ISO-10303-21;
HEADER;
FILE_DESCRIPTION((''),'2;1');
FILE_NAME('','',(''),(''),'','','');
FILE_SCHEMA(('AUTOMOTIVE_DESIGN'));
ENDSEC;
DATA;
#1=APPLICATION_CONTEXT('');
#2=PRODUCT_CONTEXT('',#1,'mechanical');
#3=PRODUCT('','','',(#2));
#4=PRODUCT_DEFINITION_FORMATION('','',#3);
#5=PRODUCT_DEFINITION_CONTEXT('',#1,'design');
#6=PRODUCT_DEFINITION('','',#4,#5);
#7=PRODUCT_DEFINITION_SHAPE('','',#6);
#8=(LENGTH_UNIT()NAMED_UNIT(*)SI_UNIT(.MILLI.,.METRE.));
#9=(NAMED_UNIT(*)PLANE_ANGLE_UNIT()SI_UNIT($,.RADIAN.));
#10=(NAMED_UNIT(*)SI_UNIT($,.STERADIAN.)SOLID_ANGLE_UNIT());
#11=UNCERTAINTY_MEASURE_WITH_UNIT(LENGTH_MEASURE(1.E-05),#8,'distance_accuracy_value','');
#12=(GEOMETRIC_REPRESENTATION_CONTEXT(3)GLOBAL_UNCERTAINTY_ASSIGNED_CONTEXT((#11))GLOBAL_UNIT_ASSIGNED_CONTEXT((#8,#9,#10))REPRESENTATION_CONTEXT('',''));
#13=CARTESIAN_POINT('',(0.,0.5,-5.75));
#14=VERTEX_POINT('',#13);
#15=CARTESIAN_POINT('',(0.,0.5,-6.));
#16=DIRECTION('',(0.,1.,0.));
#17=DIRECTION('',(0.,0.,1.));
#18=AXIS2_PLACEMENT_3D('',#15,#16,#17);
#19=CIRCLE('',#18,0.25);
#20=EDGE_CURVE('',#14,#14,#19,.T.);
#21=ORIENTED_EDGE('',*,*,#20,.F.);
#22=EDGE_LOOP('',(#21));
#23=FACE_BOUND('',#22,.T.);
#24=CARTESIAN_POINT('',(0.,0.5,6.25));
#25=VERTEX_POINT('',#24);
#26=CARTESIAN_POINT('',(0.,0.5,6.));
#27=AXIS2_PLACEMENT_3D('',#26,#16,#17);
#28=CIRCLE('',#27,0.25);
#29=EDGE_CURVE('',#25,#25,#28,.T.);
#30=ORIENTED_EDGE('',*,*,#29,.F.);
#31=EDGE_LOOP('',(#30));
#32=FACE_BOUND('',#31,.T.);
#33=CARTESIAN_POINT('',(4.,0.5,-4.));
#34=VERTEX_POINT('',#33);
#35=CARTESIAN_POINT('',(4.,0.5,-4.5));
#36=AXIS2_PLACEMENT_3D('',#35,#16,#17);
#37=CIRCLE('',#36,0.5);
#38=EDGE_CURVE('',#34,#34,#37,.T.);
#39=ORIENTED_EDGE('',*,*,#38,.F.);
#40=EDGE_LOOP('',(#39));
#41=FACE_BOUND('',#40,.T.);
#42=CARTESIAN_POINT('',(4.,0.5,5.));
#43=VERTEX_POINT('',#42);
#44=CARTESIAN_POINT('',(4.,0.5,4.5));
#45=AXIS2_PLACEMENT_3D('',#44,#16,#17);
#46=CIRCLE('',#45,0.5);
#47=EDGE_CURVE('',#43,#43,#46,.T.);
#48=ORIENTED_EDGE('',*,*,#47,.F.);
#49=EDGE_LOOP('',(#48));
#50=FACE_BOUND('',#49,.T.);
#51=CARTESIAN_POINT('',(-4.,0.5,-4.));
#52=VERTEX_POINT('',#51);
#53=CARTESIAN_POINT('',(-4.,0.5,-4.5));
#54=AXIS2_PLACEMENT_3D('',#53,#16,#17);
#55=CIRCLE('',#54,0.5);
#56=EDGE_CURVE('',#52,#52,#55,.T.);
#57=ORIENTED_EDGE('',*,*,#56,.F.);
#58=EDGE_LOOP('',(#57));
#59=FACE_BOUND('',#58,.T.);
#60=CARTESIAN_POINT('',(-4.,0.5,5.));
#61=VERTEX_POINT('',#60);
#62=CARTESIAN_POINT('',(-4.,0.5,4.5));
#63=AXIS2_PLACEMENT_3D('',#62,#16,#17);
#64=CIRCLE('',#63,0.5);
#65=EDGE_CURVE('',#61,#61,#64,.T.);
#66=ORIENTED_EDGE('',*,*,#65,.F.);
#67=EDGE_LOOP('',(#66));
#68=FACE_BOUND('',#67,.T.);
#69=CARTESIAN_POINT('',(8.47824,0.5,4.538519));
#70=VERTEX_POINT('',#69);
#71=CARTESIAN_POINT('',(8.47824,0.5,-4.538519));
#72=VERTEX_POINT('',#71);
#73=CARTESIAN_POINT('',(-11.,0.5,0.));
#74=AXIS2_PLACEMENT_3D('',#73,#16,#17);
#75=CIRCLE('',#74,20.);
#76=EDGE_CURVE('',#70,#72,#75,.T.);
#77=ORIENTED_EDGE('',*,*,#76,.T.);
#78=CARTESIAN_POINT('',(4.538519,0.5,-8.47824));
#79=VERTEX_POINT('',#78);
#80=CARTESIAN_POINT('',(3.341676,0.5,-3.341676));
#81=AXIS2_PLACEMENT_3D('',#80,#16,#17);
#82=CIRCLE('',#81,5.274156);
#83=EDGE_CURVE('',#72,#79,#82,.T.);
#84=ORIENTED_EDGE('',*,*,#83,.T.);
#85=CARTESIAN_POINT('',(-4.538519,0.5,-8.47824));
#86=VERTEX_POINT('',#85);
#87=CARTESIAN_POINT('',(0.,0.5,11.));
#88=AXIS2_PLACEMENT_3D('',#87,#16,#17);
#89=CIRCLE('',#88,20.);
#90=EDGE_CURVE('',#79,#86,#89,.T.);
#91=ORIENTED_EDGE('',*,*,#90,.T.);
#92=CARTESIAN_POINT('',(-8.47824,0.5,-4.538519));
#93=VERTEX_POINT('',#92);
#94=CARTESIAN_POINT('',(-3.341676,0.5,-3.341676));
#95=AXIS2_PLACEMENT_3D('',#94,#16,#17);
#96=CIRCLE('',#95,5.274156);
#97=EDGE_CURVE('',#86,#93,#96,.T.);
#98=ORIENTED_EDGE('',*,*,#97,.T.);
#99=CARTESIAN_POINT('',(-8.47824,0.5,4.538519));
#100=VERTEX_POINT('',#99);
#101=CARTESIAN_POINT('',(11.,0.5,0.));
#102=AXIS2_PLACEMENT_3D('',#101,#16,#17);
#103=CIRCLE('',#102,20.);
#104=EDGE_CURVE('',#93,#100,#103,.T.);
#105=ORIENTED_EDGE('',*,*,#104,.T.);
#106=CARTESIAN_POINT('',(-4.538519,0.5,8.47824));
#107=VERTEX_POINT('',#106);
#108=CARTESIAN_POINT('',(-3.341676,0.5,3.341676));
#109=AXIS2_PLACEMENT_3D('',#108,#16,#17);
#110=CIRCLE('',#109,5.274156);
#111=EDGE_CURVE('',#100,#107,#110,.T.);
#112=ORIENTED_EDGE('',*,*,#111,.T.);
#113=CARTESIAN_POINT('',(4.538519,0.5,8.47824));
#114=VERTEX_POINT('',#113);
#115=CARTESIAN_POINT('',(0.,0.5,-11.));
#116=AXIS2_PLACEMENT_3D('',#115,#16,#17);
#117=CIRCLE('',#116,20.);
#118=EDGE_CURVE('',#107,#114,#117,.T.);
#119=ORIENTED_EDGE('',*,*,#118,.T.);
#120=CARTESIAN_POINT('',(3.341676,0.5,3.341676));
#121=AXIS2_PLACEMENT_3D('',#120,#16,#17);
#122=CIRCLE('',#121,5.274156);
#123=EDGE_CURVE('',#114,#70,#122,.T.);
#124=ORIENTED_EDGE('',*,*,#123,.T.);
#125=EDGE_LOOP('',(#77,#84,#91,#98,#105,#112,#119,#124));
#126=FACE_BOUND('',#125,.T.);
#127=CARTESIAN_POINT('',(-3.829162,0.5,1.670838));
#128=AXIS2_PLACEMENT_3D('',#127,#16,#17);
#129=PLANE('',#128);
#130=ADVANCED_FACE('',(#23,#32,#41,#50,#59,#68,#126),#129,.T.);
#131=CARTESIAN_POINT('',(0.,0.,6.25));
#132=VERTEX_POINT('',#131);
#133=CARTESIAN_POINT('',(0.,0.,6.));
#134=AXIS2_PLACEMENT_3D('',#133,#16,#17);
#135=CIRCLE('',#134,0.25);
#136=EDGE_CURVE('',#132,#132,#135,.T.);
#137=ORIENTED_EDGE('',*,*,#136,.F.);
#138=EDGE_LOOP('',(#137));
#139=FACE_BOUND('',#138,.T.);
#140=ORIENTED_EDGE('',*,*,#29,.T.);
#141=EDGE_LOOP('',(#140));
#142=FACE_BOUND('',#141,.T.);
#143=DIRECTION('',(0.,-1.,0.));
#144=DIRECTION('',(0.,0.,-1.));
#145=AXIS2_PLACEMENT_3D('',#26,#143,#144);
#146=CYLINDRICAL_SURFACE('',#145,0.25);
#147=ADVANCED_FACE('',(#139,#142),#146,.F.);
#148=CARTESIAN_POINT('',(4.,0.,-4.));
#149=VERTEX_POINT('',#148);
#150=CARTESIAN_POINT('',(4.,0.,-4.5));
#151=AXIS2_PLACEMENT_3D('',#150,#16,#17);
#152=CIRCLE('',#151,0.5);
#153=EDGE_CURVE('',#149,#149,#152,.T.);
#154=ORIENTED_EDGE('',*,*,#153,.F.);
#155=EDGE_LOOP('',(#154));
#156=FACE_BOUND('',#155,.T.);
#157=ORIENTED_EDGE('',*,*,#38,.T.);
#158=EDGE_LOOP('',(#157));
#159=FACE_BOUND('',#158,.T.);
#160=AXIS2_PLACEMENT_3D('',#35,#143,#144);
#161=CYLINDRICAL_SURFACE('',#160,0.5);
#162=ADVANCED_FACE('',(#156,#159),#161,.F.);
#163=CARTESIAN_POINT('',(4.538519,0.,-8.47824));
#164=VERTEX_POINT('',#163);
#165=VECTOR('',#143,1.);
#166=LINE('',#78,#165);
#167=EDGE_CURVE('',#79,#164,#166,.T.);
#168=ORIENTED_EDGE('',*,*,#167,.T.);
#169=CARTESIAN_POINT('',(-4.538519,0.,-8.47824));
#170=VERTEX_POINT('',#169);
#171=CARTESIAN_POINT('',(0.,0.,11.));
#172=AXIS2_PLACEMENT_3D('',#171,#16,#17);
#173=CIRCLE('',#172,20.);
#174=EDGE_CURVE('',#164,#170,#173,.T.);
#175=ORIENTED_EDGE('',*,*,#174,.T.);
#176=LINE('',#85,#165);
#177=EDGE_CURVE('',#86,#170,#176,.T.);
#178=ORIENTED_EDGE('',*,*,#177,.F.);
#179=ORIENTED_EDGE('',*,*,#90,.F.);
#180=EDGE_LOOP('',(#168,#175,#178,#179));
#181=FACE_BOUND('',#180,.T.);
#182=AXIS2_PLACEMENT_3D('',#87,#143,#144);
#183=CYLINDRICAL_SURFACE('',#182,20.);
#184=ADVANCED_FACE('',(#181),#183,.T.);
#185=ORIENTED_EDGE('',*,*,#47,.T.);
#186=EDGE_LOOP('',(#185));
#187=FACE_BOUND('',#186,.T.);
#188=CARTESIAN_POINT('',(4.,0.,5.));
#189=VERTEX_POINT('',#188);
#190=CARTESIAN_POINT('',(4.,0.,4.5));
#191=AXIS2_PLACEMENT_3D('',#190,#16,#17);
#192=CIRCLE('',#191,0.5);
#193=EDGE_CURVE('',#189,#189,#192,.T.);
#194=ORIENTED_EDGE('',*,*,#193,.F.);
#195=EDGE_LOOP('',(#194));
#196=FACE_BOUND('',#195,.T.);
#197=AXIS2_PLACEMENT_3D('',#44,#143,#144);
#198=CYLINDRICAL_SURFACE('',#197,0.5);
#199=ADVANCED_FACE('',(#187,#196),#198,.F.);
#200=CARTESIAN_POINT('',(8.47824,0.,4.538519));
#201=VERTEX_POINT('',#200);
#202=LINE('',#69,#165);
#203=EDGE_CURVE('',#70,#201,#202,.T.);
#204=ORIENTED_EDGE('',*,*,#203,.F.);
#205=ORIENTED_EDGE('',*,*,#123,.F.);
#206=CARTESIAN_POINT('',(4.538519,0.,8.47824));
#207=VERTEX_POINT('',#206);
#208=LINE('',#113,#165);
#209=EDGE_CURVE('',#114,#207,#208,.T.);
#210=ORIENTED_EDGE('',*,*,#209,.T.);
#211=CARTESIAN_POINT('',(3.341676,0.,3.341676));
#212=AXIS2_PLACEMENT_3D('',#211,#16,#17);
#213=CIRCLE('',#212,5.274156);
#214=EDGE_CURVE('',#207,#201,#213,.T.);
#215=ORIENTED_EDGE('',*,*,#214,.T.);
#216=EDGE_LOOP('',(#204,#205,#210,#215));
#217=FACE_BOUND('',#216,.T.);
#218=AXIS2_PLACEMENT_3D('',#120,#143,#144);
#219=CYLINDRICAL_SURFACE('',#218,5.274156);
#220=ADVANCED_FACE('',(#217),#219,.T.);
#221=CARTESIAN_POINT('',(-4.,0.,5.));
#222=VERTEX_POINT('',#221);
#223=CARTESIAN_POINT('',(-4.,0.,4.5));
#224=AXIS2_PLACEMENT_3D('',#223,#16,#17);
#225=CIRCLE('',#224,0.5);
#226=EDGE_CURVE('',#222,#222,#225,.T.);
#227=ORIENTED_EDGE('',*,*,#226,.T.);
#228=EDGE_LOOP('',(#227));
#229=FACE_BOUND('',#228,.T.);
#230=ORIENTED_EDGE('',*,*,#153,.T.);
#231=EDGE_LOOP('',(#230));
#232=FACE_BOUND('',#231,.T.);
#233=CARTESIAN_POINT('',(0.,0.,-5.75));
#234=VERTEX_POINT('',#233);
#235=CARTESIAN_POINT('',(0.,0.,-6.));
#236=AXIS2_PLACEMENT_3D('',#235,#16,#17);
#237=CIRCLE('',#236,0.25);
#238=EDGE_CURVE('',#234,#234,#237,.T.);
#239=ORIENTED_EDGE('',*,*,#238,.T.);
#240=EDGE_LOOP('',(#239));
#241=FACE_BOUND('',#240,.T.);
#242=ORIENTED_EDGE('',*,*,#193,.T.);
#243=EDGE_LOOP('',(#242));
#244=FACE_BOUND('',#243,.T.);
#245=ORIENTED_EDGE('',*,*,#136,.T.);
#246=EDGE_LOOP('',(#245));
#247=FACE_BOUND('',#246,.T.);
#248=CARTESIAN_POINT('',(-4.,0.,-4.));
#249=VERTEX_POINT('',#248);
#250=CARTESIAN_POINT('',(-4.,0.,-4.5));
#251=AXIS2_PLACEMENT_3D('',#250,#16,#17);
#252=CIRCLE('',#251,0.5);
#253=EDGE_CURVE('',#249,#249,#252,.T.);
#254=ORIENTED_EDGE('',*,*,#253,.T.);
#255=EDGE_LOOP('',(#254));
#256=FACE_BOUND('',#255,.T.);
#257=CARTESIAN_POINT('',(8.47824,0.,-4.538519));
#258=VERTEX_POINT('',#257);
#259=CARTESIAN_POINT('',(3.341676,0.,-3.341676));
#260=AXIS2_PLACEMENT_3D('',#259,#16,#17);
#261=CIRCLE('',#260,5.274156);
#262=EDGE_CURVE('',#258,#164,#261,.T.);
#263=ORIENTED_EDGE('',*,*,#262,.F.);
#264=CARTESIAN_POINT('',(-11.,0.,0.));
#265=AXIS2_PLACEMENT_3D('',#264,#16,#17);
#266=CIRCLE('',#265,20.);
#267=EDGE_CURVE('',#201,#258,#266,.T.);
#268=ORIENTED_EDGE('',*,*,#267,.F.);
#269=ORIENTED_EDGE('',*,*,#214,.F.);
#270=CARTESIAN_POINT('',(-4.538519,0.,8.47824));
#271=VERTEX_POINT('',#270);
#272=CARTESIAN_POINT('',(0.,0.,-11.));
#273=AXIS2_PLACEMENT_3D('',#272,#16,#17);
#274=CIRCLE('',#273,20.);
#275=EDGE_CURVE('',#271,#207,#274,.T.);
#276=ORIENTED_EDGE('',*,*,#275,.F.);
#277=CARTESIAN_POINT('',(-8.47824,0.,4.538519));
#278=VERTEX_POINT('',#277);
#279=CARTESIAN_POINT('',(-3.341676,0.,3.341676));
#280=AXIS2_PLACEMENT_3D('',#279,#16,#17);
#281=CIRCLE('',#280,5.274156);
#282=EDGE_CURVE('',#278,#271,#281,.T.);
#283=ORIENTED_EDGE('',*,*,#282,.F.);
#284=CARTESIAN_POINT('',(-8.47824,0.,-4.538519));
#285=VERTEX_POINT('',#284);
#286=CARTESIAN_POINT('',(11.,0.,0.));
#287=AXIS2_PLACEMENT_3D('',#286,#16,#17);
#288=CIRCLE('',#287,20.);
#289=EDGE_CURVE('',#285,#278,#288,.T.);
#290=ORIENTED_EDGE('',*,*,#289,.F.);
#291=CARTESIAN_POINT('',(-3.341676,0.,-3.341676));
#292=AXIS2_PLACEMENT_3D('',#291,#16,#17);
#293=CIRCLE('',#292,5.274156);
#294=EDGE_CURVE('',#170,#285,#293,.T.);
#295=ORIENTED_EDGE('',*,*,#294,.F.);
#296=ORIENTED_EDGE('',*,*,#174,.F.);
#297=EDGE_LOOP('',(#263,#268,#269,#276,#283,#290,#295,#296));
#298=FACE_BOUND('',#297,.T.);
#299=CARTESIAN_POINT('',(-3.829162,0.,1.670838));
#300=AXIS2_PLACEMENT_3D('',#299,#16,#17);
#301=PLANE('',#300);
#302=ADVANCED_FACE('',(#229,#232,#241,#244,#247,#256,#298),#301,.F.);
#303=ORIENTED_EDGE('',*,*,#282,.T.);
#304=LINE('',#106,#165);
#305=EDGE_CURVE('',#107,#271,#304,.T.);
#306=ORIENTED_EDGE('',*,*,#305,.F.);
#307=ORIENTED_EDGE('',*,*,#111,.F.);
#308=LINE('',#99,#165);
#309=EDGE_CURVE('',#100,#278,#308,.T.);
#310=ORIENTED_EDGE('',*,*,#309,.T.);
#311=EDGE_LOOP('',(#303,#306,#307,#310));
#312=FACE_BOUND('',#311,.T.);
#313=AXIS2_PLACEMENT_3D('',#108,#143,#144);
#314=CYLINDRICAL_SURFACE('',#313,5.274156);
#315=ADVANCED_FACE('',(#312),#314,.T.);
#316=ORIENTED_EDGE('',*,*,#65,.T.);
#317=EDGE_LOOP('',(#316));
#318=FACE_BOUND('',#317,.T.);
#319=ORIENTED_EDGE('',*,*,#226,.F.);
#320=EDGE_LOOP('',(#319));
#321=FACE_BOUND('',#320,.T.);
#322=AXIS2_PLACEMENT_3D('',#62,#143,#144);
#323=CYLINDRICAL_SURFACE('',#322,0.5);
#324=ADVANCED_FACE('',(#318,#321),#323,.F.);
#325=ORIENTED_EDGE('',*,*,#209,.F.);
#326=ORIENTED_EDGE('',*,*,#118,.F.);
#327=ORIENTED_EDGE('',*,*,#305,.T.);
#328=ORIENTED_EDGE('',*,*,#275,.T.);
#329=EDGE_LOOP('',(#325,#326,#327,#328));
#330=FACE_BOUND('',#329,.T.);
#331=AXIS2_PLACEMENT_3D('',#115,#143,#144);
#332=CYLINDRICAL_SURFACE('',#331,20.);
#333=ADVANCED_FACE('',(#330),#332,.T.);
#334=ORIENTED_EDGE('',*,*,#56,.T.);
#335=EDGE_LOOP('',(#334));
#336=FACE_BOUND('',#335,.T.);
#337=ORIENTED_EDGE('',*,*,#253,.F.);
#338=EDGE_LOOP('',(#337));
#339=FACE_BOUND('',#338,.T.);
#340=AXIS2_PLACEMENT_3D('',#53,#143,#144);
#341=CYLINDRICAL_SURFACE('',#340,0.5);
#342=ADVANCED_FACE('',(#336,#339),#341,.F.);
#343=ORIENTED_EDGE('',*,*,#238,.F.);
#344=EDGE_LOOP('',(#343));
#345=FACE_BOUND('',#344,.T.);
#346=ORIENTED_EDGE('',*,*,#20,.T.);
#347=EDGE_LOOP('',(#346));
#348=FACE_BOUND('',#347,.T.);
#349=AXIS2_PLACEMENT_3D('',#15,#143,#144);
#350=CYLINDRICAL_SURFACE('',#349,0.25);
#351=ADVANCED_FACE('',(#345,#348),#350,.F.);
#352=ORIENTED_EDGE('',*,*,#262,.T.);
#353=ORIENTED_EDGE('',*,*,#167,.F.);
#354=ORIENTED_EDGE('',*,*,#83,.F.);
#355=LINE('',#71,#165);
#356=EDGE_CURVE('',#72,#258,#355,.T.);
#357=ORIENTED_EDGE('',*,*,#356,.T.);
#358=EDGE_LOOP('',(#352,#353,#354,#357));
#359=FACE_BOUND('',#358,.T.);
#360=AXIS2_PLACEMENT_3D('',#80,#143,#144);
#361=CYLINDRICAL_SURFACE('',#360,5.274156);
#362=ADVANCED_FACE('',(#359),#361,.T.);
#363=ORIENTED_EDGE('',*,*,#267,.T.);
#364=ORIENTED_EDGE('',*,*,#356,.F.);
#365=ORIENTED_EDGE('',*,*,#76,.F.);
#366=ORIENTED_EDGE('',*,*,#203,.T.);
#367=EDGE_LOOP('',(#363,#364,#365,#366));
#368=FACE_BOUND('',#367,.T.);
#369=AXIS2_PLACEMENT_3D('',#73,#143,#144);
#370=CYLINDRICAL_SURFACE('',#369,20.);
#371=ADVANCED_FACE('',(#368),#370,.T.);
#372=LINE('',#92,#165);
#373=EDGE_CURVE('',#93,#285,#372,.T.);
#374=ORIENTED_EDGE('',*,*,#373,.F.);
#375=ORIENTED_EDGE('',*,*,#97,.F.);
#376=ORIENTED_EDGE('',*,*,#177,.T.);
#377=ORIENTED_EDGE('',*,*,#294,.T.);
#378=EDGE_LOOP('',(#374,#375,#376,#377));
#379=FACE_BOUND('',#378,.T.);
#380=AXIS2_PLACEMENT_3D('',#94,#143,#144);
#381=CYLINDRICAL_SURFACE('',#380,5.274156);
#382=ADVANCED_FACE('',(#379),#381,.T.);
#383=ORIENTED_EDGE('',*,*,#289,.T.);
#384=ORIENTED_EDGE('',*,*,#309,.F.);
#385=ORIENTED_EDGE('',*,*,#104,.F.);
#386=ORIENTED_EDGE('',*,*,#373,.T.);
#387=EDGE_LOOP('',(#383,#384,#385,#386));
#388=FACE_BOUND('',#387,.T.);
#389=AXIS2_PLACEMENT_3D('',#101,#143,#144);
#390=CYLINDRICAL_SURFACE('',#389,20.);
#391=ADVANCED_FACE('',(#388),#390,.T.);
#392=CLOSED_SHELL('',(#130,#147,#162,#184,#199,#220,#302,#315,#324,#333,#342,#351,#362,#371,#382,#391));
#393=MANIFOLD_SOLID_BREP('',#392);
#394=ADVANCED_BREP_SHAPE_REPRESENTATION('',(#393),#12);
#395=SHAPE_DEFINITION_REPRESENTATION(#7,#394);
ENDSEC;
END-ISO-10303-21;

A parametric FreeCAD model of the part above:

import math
import FreeCAD as App
import Part
import Sketcher
from FreeCAD import Vector
Q = App.Units.Quantity

doc = App.newDocument("Part")
params = doc.addObject("Spreadsheet::Sheet", "Params")
for row, (alias, value) in enumerate([
    ("sketch1_diameter", "1 mm"),
    ("sketch1_radius", "20 mm"),
    ("sketch1_diameter2", "0.5 mm"),
    ("pad1_length", "0.5 mm"),
], start=1):
    params.set(f"A{row}", alias)
    params.set(f"B{row}", "=" + value)
    params.setAlias(f"B{row}", alias)

body = doc.addObject("PartDesign::Body", "Body")

sketch1 = body.newObject("Sketcher::SketchObject", "Sketch")
sketch1.AttachmentSupport = (doc.getObject("XZ_Plane"), [""])
sketch1.MapMode = "FlatFace"
sketch1.addGeometry(Part.ArcOfCircle(Part.Circle(Vector(-11, 0, 0), Vector(0, 0, 1), 20), math.radians(-13), math.radians(13)), False)
sketch1.addGeometry(Part.ArcOfCircle(Part.Circle(Vector(3.34, -3.34, 0), Vector(0, 0, 1), 5.27), math.radians(-77), math.radians(-13)), False)
sketch1.addGeometry(Part.ArcOfCircle(Part.Circle(Vector(0, 11, 0), Vector(0, 0, 1), 20), math.radians(-103), math.radians(-77)), False)
sketch1.addGeometry(Part.ArcOfCircle(Part.Circle(Vector(-3.34, -3.34, 0), Vector(0, 0, 1), 5.27), math.radians(-167), math.radians(-103)), False)
sketch1.addGeometry(Part.ArcOfCircle(Part.Circle(Vector(11, 0, 0), Vector(0, 0, 1), 20), math.radians(167), math.radians(193)), False)
sketch1.addGeometry(Part.ArcOfCircle(Part.Circle(Vector(-3.34, 3.34, 0), Vector(0, 0, 1), 5.27), math.radians(103), math.radians(167)), False)
sketch1.addGeometry(Part.ArcOfCircle(Part.Circle(Vector(0, -11, 0), Vector(0, 0, 1), 20), math.radians(77), math.radians(103)), False)
sketch1.addGeometry(Part.ArcOfCircle(Part.Circle(Vector(3.34, 3.34, 0), Vector(0, 0, 1), 5.27), math.radians(13), math.radians(77)), False)
sketch1.addGeometry(Part.Circle(Vector(-4, 4.5, 0), Vector(0, 0, 1), 0.5), False)
sketch1.addGeometry(Part.Circle(Vector(0, 6, 0), Vector(0, 0, 1), 0.25), False)
sketch1.addGeometry(Part.Circle(Vector(4, 4.5, 0), Vector(0, 0, 1), 0.5), False)
sketch1.addGeometry(Part.Circle(Vector(-4, -4.5, 0), Vector(0, 0, 1), 0.5), False)
sketch1.addGeometry(Part.Circle(Vector(0, -6, 0), Vector(0, 0, 1), 0.25), False)
sketch1.addGeometry(Part.Circle(Vector(4, -4.5, 0), Vector(0, 0, 1), 0.5), False)
sketch1.addConstraint(Sketcher.Constraint("Tangent", 0, 1, 1, 2))
sketch1.addConstraint(Sketcher.Constraint("Tangent", 1, 1, 2, 2))
sketch1.addConstraint(Sketcher.Constraint("Tangent", 2, 1, 3, 2))
sketch1.addConstraint(Sketcher.Constraint("Tangent", 3, 1, 4, 2))
sketch1.addConstraint(Sketcher.Constraint("Tangent", 4, 1, 5, 2))
sketch1.addConstraint(Sketcher.Constraint("Tangent", 5, 1, 6, 2))
sketch1.addConstraint(Sketcher.Constraint("Tangent", 6, 1, 7, 2))
sketch1.addConstraint(Sketcher.Constraint("Tangent", 7, 1, 0, 2))
sketch1.addConstraint(Sketcher.Constraint("Equal", 0, 2))
sketch1.addConstraint(Sketcher.Constraint("Equal", 1, 3))
sketch1.addConstraint(Sketcher.Constraint("Equal", 2, 4))
sketch1.addConstraint(Sketcher.Constraint("Equal", 3, 5))
sketch1.addConstraint(Sketcher.Constraint("Equal", 4, 6))
sketch1.addConstraint(Sketcher.Constraint("Equal", 5, 7))
sketch1.addConstraint(Sketcher.Constraint("Equal", 8, 10))
sketch1.addConstraint(Sketcher.Constraint("Equal", 10, 11))
sketch1.addConstraint(Sketcher.Constraint("Equal", 9, 12))
sketch1.addConstraint(Sketcher.Constraint("Equal", 11, 13))
sketch1.addConstraint(Sketcher.Constraint("Symmetric", 0, 3, 4, 3, -1, 1))
sketch1.addConstraint(Sketcher.Constraint("Symmetric", 2, 3, 6, 3, -1, 1))
sketch1.addConstraint(Sketcher.Constraint("Symmetric", 10, 3, 11, 3, -1, 1))
sketch1.addConstraint(Sketcher.Constraint("Symmetric", 9, 3, 12, 3, -1, 1))
sketch1.addConstraint(Sketcher.Constraint("Symmetric", 8, 3, 13, 3, -1, 1))
sketch1.addConstraint(Sketcher.Constraint("Symmetric", 1, 3, 3, 3, -2))
sketch1.addConstraint(Sketcher.Constraint("Symmetric", 8, 3, 10, 3, -2))
sketch1.addConstraint(Sketcher.Constraint("PointOnObject", 9, 3, -2))
sketch1.addConstraint(Sketcher.Constraint("Diameter", 8, Q("1 mm")))
sketch1.addConstraint(Sketcher.Constraint("Radius", 0, Q("20 mm")))
sketch1.addConstraint(Sketcher.Constraint("Diameter", 9, Q("0.5 mm")))
sketch1.addConstraint(Sketcher.Constraint("DistanceX", 0, 3, -1, 1, Q("11 mm")))
sketch1.addConstraint(Sketcher.Constraint("DistanceY", -1, 1, 2, 3, Q("11 mm")))
sketch1.addConstraint(Sketcher.Constraint("DistanceX", 8, 3, -1, 1, Q("4 mm")))
sketch1.addConstraint(Sketcher.Constraint("DistanceY", -1, 1, 9, 3, Q("6 mm")))
sketch1.addConstraint(Sketcher.Constraint("DistanceY", -1, 1, 8, 3, Q("4.5 mm")))
sketch1.addConstraint(Sketcher.Constraint("Radius", 1, Q("5.274156 mm")))
sketch1.setExpression("Constraints[26]", "Params.sketch1_diameter")
sketch1.setExpression("Constraints[27]", "Params.sketch1_radius")
sketch1.setExpression("Constraints[28]", "Params.sketch1_diameter2")
pad1 = body.newObject("PartDesign::Pad", "Pad")
pad1.Profile = sketch1
pad1.setExpression("Length", "Params.pad1_length")
pad1.Reversed = True

doc.recompute()
